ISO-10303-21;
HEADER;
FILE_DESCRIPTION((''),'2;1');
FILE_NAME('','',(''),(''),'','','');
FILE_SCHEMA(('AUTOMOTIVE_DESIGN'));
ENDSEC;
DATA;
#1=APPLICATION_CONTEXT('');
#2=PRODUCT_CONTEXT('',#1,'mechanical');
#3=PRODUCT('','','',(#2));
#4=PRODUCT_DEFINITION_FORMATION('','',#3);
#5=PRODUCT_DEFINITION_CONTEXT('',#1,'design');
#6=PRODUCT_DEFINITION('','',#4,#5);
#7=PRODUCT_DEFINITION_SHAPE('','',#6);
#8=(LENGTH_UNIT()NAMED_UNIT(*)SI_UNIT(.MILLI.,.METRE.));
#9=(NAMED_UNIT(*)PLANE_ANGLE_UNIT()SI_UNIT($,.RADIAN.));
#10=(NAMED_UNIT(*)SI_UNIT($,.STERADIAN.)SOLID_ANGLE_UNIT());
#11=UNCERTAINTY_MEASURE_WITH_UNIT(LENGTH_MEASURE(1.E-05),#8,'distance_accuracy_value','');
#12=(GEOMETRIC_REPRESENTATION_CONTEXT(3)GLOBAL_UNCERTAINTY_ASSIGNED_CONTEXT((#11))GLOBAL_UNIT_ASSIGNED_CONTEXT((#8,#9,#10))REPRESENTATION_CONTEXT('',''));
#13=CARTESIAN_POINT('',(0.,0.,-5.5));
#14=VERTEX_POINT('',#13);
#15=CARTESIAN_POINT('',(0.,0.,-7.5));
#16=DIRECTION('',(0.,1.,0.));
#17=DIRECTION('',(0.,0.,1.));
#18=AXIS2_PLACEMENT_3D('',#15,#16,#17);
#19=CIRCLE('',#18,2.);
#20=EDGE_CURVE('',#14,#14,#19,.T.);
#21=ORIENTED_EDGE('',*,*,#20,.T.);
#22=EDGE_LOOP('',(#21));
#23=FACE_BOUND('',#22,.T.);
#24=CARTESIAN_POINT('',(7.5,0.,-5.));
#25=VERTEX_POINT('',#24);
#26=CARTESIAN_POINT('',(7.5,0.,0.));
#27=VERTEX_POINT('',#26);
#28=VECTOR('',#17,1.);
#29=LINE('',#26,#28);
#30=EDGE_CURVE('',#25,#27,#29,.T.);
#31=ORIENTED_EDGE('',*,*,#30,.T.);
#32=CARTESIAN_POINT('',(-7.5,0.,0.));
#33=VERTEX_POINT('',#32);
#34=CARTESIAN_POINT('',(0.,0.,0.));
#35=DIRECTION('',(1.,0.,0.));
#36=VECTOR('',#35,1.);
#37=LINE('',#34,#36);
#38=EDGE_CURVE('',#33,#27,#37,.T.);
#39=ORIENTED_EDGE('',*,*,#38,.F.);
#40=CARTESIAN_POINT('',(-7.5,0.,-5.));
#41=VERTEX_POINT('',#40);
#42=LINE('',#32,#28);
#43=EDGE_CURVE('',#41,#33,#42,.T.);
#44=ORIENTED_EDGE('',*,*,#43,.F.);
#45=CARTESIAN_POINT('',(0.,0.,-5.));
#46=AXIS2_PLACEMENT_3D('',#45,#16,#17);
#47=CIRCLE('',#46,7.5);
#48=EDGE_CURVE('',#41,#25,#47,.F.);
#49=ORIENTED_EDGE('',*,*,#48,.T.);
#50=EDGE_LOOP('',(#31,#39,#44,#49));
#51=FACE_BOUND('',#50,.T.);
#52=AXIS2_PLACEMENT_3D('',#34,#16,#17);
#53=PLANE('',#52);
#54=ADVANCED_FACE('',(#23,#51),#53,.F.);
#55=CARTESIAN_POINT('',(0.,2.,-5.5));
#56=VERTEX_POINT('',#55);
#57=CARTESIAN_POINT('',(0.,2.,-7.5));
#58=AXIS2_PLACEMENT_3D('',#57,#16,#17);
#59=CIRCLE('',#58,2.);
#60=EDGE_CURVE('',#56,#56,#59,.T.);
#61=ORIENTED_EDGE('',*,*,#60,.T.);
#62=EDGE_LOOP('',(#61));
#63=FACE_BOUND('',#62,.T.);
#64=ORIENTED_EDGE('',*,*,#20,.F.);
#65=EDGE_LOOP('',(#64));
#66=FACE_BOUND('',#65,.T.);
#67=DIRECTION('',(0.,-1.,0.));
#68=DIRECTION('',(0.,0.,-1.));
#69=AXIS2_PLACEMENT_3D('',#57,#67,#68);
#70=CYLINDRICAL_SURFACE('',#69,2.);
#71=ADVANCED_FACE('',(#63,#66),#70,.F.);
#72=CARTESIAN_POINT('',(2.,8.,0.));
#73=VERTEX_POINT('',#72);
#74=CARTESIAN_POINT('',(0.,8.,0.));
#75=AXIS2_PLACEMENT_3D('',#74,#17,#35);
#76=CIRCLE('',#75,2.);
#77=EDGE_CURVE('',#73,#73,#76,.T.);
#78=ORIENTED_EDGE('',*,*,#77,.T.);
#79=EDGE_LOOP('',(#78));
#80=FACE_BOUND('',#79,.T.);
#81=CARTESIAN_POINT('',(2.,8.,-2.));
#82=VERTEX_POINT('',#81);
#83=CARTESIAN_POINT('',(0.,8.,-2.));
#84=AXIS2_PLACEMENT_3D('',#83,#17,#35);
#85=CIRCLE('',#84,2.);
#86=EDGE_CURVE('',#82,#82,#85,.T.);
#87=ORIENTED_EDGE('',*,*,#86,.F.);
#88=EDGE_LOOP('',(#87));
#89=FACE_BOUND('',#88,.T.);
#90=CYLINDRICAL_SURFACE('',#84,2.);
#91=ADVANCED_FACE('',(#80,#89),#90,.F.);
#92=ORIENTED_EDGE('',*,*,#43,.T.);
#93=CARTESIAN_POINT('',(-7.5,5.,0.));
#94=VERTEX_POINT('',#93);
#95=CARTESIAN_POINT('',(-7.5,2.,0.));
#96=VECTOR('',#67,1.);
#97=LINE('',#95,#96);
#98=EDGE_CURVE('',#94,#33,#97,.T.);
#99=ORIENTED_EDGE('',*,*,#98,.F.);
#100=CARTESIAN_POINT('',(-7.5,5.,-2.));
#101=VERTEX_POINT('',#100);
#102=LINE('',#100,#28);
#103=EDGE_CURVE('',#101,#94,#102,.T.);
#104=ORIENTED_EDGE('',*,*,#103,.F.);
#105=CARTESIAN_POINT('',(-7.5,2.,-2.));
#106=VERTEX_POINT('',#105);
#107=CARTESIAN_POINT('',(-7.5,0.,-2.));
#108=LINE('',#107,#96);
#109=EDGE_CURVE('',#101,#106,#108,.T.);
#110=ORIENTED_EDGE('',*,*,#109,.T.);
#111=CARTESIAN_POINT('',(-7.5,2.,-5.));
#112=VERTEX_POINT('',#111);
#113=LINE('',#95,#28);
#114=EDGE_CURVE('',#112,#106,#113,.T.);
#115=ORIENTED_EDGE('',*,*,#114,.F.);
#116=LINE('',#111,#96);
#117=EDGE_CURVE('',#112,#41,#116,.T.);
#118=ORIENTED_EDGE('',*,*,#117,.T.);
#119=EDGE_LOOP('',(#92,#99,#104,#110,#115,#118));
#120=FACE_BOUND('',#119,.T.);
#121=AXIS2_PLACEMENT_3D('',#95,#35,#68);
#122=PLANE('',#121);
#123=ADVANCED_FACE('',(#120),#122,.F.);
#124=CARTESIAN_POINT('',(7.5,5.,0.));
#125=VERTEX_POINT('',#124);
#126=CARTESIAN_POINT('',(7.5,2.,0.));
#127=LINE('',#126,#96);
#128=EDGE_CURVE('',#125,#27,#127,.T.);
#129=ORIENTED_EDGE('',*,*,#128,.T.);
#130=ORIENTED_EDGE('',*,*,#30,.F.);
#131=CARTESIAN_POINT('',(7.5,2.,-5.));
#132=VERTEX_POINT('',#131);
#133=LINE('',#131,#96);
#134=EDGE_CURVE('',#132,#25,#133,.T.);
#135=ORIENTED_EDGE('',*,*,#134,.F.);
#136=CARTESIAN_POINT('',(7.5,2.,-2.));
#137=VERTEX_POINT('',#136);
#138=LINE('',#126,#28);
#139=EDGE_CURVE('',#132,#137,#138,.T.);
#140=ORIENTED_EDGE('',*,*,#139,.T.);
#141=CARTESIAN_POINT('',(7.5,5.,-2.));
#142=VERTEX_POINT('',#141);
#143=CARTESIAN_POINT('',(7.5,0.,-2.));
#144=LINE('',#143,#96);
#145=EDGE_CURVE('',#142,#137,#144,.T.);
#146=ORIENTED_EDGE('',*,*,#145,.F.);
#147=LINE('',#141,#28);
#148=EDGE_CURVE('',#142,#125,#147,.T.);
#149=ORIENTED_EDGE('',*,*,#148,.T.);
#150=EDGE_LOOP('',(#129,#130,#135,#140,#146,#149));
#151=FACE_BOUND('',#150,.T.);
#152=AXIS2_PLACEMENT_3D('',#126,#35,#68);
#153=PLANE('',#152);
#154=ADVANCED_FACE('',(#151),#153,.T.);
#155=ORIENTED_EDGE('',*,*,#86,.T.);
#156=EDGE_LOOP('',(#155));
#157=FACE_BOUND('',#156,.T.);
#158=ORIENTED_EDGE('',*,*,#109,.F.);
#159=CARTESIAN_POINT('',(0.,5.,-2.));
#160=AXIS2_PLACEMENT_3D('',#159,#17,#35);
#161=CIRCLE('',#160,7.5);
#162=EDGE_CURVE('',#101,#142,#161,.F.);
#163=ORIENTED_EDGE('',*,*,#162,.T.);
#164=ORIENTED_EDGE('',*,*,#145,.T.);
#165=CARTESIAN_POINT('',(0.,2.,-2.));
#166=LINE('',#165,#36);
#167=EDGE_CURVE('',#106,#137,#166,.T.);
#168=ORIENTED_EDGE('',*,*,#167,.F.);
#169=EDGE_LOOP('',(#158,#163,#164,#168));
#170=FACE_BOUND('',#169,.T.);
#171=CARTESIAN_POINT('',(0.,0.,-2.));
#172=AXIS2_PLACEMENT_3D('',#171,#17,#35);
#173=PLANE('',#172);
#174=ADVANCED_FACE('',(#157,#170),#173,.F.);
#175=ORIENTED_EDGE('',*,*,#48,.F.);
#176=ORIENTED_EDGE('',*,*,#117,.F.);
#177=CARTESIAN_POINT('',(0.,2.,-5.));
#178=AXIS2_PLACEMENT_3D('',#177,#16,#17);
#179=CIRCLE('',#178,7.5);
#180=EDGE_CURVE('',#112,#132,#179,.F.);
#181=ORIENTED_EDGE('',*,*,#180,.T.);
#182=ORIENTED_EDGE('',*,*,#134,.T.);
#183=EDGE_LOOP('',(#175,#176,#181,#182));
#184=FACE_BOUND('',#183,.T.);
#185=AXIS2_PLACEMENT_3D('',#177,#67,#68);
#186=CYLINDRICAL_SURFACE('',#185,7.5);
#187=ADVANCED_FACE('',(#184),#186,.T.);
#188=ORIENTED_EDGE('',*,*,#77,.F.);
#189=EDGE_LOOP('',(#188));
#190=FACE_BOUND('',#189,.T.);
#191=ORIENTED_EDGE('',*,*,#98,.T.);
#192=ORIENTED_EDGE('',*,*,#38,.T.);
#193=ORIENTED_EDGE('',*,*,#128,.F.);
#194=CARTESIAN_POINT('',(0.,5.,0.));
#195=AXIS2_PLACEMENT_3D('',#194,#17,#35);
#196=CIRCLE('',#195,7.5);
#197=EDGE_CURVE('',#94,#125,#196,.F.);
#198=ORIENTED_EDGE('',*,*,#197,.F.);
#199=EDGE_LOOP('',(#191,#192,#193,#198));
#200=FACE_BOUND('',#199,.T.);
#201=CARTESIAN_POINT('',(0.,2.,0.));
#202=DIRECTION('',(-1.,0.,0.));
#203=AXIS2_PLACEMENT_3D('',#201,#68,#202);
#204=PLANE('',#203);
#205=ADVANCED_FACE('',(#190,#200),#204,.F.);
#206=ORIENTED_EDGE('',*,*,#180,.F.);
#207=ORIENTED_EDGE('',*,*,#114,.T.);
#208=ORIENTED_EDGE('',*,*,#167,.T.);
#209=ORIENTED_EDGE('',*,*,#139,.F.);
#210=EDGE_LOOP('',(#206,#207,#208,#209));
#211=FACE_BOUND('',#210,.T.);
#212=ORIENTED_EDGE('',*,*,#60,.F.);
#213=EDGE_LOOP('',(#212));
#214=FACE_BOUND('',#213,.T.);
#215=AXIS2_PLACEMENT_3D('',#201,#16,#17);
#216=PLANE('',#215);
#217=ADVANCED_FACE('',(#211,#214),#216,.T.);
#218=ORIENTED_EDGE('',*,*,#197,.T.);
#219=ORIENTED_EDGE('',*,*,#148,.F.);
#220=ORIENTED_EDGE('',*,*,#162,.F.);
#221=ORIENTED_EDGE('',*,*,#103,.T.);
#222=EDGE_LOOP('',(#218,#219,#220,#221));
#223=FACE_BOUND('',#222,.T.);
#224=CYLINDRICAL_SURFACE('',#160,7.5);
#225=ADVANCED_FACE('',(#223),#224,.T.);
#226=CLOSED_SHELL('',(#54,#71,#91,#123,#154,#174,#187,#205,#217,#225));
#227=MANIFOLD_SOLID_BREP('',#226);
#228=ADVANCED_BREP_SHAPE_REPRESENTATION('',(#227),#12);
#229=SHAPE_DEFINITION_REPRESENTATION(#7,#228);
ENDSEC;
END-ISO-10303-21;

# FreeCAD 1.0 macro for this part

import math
import FreeCAD as App
import Part
import Sketcher

doc = App.newDocument("Part")
body = doc.addObject("PartDesign::Body", "Body")

# Sketch on XZ plane
sketch1 = body.newObject("Sketcher::SketchObject", "Sketch")
sketch1.AttachmentSupport = (doc.getObject("XZ_Plane"), [""])
sketch1.MapMode = "FlatFace"
sketch1.addGeometry([
    Part.ArcOfCircle(Part.Circle(App.Vector(0, -5, 0), App.Vector(0, 0, 1), 7.5), math.radians(180), math.radians(360)),  # 0
    Part.LineSegment(App.Vector(-7.5, -5, 0), App.Vector(-7.5, 0, 0)),  # 1
    Part.LineSegment(App.Vector(-7.5, 0, 0), App.Vector(7.5, 0, 0)),  # 2
    Part.LineSegment(App.Vector(7.5, 0, 0), App.Vector(7.5, -5, 0)),  # 3
    Part.Circle(App.Vector(0, -7.5, 0), App.Vector(0, 0, 1), 2),  # 4
], False)
sketch1.addConstraint([
    Sketcher.Constraint("Tangent", 0, 1, 1, 1),
    Sketcher.Constraint("Coincident", 1, 2, 2, 1),
    Sketcher.Constraint("Coincident", 2, 2, 3, 1),
    Sketcher.Constraint("Tangent", 3, 2, 0, 2),
    Sketcher.Constraint("Vertical", 1),
    Sketcher.Constraint("Horizontal", 2),
    Sketcher.Constraint("Vertical", 3),
    Sketcher.Constraint("Symmetric", 1, 2, 2, 2, -1, 1),
    Sketcher.Constraint("PointOnObject", 4, 3, -2),
    Sketcher.Constraint("Diameter", 4, 4.0),
    Sketcher.Constraint("Radius", 0, 7.5),
    Sketcher.Constraint("DistanceY", 1, 1, 1, 2, 5.0),
    Sketcher.Constraint("DistanceY", 4, 3, -1, 1, 7.5),
])
pad1 = body.newObject("PartDesign::Pad", "Pad")
pad1.Profile = sketch1
pad1.Length = 2
pad1.Reversed = True

# Sketch on XY plane
sketch2 = body.newObject("Sketcher::SketchObject", "Sketch001")
sketch2.AttachmentSupport = (doc.getObject("XY_Plane"), [""])
sketch2.MapMode = "FlatFace"
sketch2.addGeometry([
    Part.LineSegment(App.Vector(-7.5, 5, 0), App.Vector(-7.5, 0, 0)),  # 0
    Part.LineSegment(App.Vector(-7.5, 0, 0), App.Vector(7.5, 0, 0)),  # 1
    Part.LineSegment(App.Vector(7.5, 0, 0), App.Vector(7.5, 5, 0)),  # 2
    Part.ArcOfCircle(Part.Circle(App.Vector(0, 5, 0), App.Vector(0, 0, 1), 7.5), math.radians(0), math.radians(180)),  # 3
    Part.Circle(App.Vector(0, 8, 0), App.Vector(0, 0, 1), 2),  # 4
], False)
sketch2.addConstraint([
    Sketcher.Constraint("Coincident", 0, 2, 1, 1),
    Sketcher.Constraint("Coincident", 1, 2, 2, 1),
    Sketcher.Constraint("Tangent", 2, 2, 3, 1),
    Sketcher.Constraint("Tangent", 3, 2, 0, 1),
    Sketcher.Constraint("Vertical", 0),
    Sketcher.Constraint("Horizontal", 1),
    Sketcher.Constraint("Vertical", 2),
    Sketcher.Constraint("Symmetric", 0, 2, 1, 2, -1, 1),
    Sketcher.Constraint("PointOnObject", 4, 3, -2),
    Sketcher.Constraint("Diameter", 4, 4.0),
    Sketcher.Constraint("Radius", 3, 7.5),
    Sketcher.Constraint("DistanceY", 0, 2, 0, 1, 5.0),
    Sketcher.Constraint("DistanceY", -1, 1, 4, 3, 8.0),
])
pad2 = body.newObject("PartDesign::Pad", "Pad001")
pad2.Profile = sketch2
pad2.Length = 2
pad2.Reversed = True

doc.recompute()
